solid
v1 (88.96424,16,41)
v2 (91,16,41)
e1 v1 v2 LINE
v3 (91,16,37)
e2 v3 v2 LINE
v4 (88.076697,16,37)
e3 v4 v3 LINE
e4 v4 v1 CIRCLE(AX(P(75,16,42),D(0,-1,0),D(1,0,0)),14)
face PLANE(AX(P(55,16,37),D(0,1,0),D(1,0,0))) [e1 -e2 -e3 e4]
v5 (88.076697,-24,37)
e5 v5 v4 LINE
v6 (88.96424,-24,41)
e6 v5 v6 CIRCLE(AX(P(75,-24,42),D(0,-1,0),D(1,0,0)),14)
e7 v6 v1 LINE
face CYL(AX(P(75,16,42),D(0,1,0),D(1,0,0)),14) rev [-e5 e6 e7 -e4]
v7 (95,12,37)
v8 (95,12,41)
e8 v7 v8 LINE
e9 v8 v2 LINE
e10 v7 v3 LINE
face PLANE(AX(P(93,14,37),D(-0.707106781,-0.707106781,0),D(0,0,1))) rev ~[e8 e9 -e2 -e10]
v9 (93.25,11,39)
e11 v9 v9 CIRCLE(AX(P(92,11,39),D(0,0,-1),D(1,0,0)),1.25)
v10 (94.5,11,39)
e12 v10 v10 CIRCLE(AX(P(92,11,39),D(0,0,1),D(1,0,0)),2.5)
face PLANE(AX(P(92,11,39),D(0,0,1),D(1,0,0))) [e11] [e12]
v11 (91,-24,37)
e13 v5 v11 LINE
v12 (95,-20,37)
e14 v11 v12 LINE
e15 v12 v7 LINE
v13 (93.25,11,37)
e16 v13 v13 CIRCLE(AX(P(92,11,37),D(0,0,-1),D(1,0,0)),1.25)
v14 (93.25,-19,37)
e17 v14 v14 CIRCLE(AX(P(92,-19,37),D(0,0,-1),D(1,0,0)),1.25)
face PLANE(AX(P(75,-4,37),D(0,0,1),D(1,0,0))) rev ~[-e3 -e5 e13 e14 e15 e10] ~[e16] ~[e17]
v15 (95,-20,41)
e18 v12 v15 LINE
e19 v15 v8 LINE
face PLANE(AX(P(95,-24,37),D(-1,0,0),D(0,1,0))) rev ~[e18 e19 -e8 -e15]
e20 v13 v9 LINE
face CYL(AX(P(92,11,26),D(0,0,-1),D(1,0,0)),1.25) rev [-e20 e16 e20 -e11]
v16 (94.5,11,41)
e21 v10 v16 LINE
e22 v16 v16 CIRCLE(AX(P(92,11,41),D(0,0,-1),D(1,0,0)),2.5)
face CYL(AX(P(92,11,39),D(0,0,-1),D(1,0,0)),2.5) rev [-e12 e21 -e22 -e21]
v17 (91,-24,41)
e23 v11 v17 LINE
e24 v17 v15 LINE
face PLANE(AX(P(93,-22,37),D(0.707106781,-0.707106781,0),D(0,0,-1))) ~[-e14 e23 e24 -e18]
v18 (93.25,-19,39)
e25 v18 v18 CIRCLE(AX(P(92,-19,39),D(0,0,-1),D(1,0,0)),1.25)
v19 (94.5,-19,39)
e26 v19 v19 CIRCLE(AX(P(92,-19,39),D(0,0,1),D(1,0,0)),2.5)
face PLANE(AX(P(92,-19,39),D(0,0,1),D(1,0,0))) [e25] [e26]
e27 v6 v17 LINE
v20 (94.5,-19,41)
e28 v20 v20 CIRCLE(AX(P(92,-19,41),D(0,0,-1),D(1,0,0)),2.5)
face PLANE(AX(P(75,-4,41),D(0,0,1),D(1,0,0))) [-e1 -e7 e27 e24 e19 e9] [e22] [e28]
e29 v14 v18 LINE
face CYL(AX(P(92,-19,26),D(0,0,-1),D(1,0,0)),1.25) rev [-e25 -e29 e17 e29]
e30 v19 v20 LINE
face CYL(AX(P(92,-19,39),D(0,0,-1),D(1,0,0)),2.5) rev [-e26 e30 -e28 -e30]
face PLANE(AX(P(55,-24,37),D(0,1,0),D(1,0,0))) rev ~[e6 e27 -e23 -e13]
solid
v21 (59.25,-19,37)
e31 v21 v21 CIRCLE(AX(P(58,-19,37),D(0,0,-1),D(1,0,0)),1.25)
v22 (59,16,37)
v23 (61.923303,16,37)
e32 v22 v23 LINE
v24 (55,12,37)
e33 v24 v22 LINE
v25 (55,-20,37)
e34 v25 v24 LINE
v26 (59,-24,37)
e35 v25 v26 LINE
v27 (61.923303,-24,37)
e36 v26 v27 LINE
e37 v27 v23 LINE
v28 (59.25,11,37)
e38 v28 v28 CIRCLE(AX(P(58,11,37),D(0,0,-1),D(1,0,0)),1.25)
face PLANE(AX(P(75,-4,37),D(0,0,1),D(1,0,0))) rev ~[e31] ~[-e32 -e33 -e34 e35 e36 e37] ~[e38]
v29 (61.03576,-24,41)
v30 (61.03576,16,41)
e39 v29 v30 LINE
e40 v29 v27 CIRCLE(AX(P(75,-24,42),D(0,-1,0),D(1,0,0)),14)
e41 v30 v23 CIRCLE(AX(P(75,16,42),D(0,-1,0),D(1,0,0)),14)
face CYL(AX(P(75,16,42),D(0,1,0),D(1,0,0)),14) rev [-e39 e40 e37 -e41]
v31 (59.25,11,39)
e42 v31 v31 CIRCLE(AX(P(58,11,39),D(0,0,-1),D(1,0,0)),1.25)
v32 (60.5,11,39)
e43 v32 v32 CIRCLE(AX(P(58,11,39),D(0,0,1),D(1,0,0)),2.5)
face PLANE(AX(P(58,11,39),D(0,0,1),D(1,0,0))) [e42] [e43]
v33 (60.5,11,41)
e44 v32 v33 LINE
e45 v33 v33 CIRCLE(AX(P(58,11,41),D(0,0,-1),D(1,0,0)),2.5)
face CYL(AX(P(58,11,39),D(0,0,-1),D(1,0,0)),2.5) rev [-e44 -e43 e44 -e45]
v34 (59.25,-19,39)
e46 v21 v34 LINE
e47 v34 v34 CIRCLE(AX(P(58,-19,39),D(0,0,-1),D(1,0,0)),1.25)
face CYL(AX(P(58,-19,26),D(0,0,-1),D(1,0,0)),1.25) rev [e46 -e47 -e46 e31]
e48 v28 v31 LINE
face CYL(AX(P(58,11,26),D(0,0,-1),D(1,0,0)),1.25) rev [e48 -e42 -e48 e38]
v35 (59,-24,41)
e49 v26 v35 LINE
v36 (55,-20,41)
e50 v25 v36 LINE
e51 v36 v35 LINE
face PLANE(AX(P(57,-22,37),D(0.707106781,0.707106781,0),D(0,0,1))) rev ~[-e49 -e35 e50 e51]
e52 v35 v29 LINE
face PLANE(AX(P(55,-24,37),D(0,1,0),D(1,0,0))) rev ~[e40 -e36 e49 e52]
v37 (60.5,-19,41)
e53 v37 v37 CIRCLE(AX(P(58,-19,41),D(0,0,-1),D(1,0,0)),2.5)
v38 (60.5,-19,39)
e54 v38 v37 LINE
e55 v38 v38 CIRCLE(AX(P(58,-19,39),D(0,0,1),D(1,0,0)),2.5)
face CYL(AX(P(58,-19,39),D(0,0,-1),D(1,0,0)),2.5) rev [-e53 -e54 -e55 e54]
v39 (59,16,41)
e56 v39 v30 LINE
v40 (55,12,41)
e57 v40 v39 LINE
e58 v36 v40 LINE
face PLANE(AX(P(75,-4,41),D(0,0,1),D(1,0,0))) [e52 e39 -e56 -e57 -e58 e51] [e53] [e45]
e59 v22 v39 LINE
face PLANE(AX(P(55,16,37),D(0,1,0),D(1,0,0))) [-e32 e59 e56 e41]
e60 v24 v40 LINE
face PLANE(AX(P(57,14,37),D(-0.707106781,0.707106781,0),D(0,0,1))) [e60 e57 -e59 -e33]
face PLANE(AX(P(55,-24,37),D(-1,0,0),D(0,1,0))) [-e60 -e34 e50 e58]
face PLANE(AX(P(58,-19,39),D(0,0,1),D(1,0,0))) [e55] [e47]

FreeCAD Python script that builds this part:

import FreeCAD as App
import Part
import Sketcher
from FreeCAD import Vector


def edges_at(feature, points):
    """Names of the edges that pass closest to the given points."""
    edges = feature.Shape.Edges
    near = lambda p: min(range(len(edges)), key=lambda i: edges[i].distToShape(Part.Vertex(*p))[0])
    return sorted({f"Edge{near(p) + 1}" for p in points})

doc = App.newDocument("Part")
body = doc.addObject("PartDesign::Body", "Body")

sketch1 = body.newObject("Sketcher::SketchObject", "Sketch")
sketch1.AttachmentSupport = (doc.getObject("XY_Plane"), [""])
sketch1.MapMode = "FlatFace"
sketch1.AttachmentOffset = App.Placement(Vector(0, 0, 26), App.Rotation())
sketch1.addGeometry(Part.Circle(Vector(58, -19, 0), Vector(0, 0, 1), 2.5), False)
sketch1.addConstraint([
    Sketcher.Constraint("Diameter", 0, 5.0),
    Sketcher.Constraint("DistanceX", -1, 1, 0, 3, 58.0),
    Sketcher.Constraint("DistanceY", 0, 3, -1, 1, 19.0),
])
pad1 = body.newObject("PartDesign::Pad", "Pad")
pad1.Profile = sketch1
pad1.Length = 3
body2 = doc.addObject("PartDesign::Body", "Body001")
body2.AllowCompound = True

sketch2 = body2.newObject("Sketcher::SketchObject", "Sketch001")
sketch2.AttachmentSupport = (doc.getObject("XY_Plane001"), [""])
sketch2.MapMode = "FlatFace"
sketch2.AttachmentOffset = App.Placement(Vector(0, 0, 26), App.Rotation())
sketch2.addGeometry(Part.Circle(Vector(58, 11, 0), Vector(0, 0, 1), 2.5), False)
sketch2.addConstraint([
    Sketcher.Constraint("Diameter", 0, 5.0),
    Sketcher.Constraint("DistanceX", -1, 1, 0, 3, 58.0),
    Sketcher.Constraint("DistanceY", -1, 1, 0, 3, 11.0),
])
pad2 = body2.newObject("PartDesign::Pad", "Pad001")
pad2.Profile = sketch2
pad2.Length = 3
doc.recompute()

boolean = body2.newObject("PartDesign::Boolean", "Boolean")
boolean.Type = "Fuse"
boolean.addObjects([body])
body3 = doc.addObject("PartDesign::Body", "Body002")
body3.AllowCompound = True
doc.recompute()

body2.Placement = App.Placement(Vector(34, 0, 13), App.Rotation(Vector(0, 0, 1), 0))
boolean2 = body3.newObject("PartDesign::Boolean", "Boolean001")
boolean2.Type = "Fuse"
boolean2.addObjects([body2])
body4 = doc.addObject("PartDesign::Body", "Body003")

sketch3 = body4.newObject("Sketcher::SketchObject", "Sketch002")
sketch3.AttachmentSupport = (doc.getObject("XY_Plane003"), [""])
sketch3.MapMode = "FlatFace"
sketch3.AttachmentOffset = App.Placement(Vector(0, 0, 26), App.Rotation())
sketch3.addGeometry(Part.Circle(Vector(58, -19, 0), Vector(0, 0, 1), 2.5), False)
sketch3.addConstraint([
    Sketcher.Constraint("Diameter", 0, 5.0),
    Sketcher.Constraint("DistanceX", -1, 1, 0, 3, 58.0),
    Sketcher.Constraint("DistanceY", 0, 3, -1, 1, 19.0),
])
pad3 = body4.newObject("PartDesign::Pad", "Pad002")
pad3.Profile = sketch3
pad3.Length = 3
body5 = doc.addObject("PartDesign::Body", "Body004")
body5.AllowCompound = True

sketch4 = body5.newObject("Sketcher::SketchObject", "Sketch003")
sketch4.AttachmentSupport = (doc.getObject("XY_Plane004"), [""])
sketch4.MapMode = "FlatFace"
sketch4.AttachmentOffset = App.Placement(Vector(0, 0, 26), App.Rotation())
sketch4.addGeometry(Part.Circle(Vector(58, 11, 0), Vector(0, 0, 1), 2.5), False)
sketch4.addConstraint([
    Sketcher.Constraint("Diameter", 0, 5.0),
    Sketcher.Constraint("DistanceX", -1, 1, 0, 3, 58.0),
    Sketcher.Constraint("DistanceY", -1, 1, 0, 3, 11.0),
])
pad4 = body5.newObject("PartDesign::Pad", "Pad003")
pad4.Profile = sketch4
pad4.Length = 3
doc.recompute()

boolean3 = body5.newObject("PartDesign::Boolean", "Boolean002")
boolean3.Type = "Fuse"
boolean3.addObjects([body4])
body6 = doc.addObject("PartDesign::Body", "Body005")
body6.AllowCompound = True
doc.recompute()

body5.Placement = App.Placement(Vector(0, 0, 13), App.Rotation(Vector(0, 0, 1), 0))
boolean4 = body6.newObject("PartDesign::Boolean", "Boolean003")
boolean4.Type = "Fuse"
boolean4.addObjects([body5])
doc.recompute()

boolean5 = body6.newObject("PartDesign::Boolean", "Boolean004")
boolean5.Type = "Fuse"
boolean5.addObjects([body3])
body7 = doc.addObject("PartDesign::Body", "Body006")

sketch5 = body7.newObject("Sketcher::SketchObject", "Sketch004")
sketch5.AttachmentSupport = (doc.getObject("XY_Plane006"), [""])
sketch5.MapMode = "FlatFace"
sketch5.AttachmentOffset = App.Placement(Vector(0, 0, 26), App.Rotation())
sketch5.addGeometry(Part.Circle(Vector(58, -19, 0), Vector(0, 0, 1), 1.25), False)
sketch5.addConstraint([
    Sketcher.Constraint("Diameter", 0, 2.5),
    Sketcher.Constraint("DistanceX", -1, 1, 0, 3, 58.0),
    Sketcher.Constraint("DistanceY", 0, 3, -1, 1, 19.0),
])
pad5 = body7.newObject("PartDesign::Pad", "Pad004")
pad5.Profile = sketch5
pad5.Length = 20
body8 = doc.addObject("PartDesign::Body", "Body007")
body8.AllowCompound = True

sketch6 = body8.newObject("Sketcher::SketchObject", "Sketch005")
sketch6.AttachmentSupport = (doc.getObject("XY_Plane007"), [""])
sketch6.MapMode = "FlatFace"
sketch6.AttachmentOffset = App.Placement(Vector(0, 0, 26), App.Rotation())
sketch6.addGeometry(Part.Circle(Vector(58, 11, 0), Vector(0, 0, 1), 1.25), False)
sketch6.addConstraint([
    Sketcher.Constraint("Diameter", 0, 2.5),
    Sketcher.Constraint("DistanceX", -1, 1, 0, 3, 58.0),
    Sketcher.Constraint("DistanceY", -1, 1, 0, 3, 11.0),
])
pad6 = body8.newObject("PartDesign::Pad", "Pad005")
pad6.Profile = sketch6
pad6.Length = 20
doc.recompute()

boolean6 = body8.newObject("PartDesign::Boolean", "Boolean005")
boolean6.Type = "Fuse"
boolean6.addObjects([body7])
body9 = doc.addObject("PartDesign::Body", "Body008")
body9.AllowCompound = True
doc.recompute()

body8.Placement = App.Placement(Vector(34, 0, 0), App.Rotation(Vector(0, 0, 1), 0))
boolean7 = body9.newObject("PartDesign::Boolean", "Boolean006")
boolean7.Type = "Fuse"
boolean7.addObjects([body8])
body10 = doc.addObject("PartDesign::Body", "Body009")

sketch7 = body10.newObject("Sketcher::SketchObject", "Sketch006")
sketch7.AttachmentSupport = (doc.getObject("XY_Plane009"), [""])
sketch7.MapMode = "FlatFace"
sketch7.AttachmentOffset = App.Placement(Vector(0, 0, 26), App.Rotation())
sketch7.addGeometry(Part.Circle(Vector(58, -19, 0), Vector(0, 0, 1), 1.25), False)
sketch7.addConstraint([
    Sketcher.Constraint("Diameter", 0, 2.5),
    Sketcher.Constraint("DistanceX", -1, 1, 0, 3, 58.0),
    Sketcher.Constraint("DistanceY", 0, 3, -1, 1, 19.0),
])
pad7 = body10.newObject("PartDesign::Pad", "Pad006")
pad7.Profile = sketch7
pad7.Length = 20
body11 = doc.addObject("PartDesign::Body", "Body010")
body11.AllowCompound = True

sketch8 = body11.newObject("Sketcher::SketchObject", "Sketch007")
sketch8.AttachmentSupport = (doc.getObject("XY_Plane010"), [""])
sketch8.MapMode = "FlatFace"
sketch8.AttachmentOffset = App.Placement(Vector(0, 0, 26), App.Rotation())
sketch8.addGeometry(Part.Circle(Vector(58, 11, 0), Vector(0, 0, 1), 1.25), False)
sketch8.addConstraint([
    Sketcher.Constraint("Diameter", 0, 2.5),
    Sketcher.Constraint("DistanceX", -1, 1, 0, 3, 58.0),
    Sketcher.Constraint("DistanceY", -1, 1, 0, 3, 11.0),
])
pad8 = body11.newObject("PartDesign::Pad", "Pad007")
pad8.Profile = sketch8
pad8.Length = 20
doc.recompute()

boolean8 = body11.newObject("PartDesign::Boolean", "Boolean007")
boolean8.Type = "Fuse"
boolean8.addObjects([body10])
doc.recompute()

boolean9 = body11.newObject("PartDesign::Boolean", "Boolean008")
boolean9.Type = "Fuse"
boolean9.addObjects([body9])
body12 = doc.addObject("PartDesign::Body", "Body011")

sketch9 = body12.newObject("Sketcher::SketchObject", "Sketch008")
sketch9.AttachmentSupport = (doc.getObject("XZ_Plane011"), [""])
sketch9.MapMode = "FlatFace"
sketch9.AttachmentOffset = App.Placement(Vector(0, 0, -16), App.Rotation())
sketch9.addGeometry(Part.Circle(Vector(75, 42, 0), Vector(0, 0, 1), 14), False)
sketch9.addConstraint([
    Sketcher.Constraint("Diameter", 0, 28.0),
    Sketcher.Constraint("DistanceX", -1, 1, 0, 3, 75.0),
    Sketcher.Constraint("DistanceY", -1, 1, 0, 3, 42.0),
])
pad9 = body12.newObject("PartDesign::Pad", "Pad008")
pad9.Profile = sketch9
pad9.Length = 40
body13 = doc.addObject("PartDesign::Body", "Body012")
body13.AllowCompound = True

sketch10 = body13.newObject("Sketcher::SketchObject", "Sketch009")
sketch10.AttachmentSupport = (doc.getObject("XY_Plane012"), [""])
sketch10.MapMode = "FlatFace"
sketch10.AttachmentOffset = App.Placement(Vector(0, 0, 37), App.Rotation())
sketch10.addGeometry([
    Part.LineSegment(Vector(55, 16, 0), Vector(55, -24, 0)),
    Part.LineSegment(Vector(55, -24, 0), Vector(95, -24, 0)),
    Part.LineSegment(Vector(95, -24, 0), Vector(95, 16, 0)),
    Part.LineSegment(Vector(95, 16, 0), Vector(55, 16, 0)),
], False)
sketch10.addConstraint([
    Sketcher.Constraint("Coincident", 0, 2, 1, 1),
    Sketcher.Constraint("Coincident", 1, 2, 2, 1),
    Sketcher.Constraint("Coincident", 2, 2, 3, 1),
    Sketcher.Constraint("Coincident", 3, 2, 0, 1),
    Sketcher.Constraint("Vertical", 0),
    Sketcher.Constraint("Horizontal", 1),
    Sketcher.Constraint("Vertical", 2),
    Sketcher.Constraint("Horizontal", 3),
    Sketcher.Constraint("Equal", 3, 0),
    Sketcher.Constraint("DistanceX", 1, 1, 1, 2, 40.0),
    Sketcher.Constraint("DistanceX", -1, 1, 0, 2, 55.0),
    Sketcher.Constraint("DistanceY", 0, 2, -1, 1, 24.0),
])
pad10 = body13.newObject("PartDesign::Pad", "Pad009")
pad10.Profile = sketch10
pad10.Length = 4
doc.recompute()

boolean10 = body13.newObject("PartDesign::Boolean", "Boolean009")
boolean10.Type = "Cut"
boolean10.addObjects([body12])
doc.recompute()

boolean11 = body13.newObject("PartDesign::Boolean", "Boolean010")
boolean11.Type = "Cut"
boolean11.addObjects([body11])
doc.recompute()

boolean12 = body13.newObject("PartDesign::Boolean", "Boolean011")
boolean12.Type = "Cut"
boolean12.addObjects([body6])
doc.recompute()

chamfer = body13.newObject("PartDesign::Chamfer", "Chamfer")
chamfer.Base = (boolean12, edges_at(boolean12, [
    (55, -24, 39),
    (55, 16, 39),
    (95, -24, 39),
    (95, 16, 39),
]))
chamfer.Size = 4

doc.recompute()
